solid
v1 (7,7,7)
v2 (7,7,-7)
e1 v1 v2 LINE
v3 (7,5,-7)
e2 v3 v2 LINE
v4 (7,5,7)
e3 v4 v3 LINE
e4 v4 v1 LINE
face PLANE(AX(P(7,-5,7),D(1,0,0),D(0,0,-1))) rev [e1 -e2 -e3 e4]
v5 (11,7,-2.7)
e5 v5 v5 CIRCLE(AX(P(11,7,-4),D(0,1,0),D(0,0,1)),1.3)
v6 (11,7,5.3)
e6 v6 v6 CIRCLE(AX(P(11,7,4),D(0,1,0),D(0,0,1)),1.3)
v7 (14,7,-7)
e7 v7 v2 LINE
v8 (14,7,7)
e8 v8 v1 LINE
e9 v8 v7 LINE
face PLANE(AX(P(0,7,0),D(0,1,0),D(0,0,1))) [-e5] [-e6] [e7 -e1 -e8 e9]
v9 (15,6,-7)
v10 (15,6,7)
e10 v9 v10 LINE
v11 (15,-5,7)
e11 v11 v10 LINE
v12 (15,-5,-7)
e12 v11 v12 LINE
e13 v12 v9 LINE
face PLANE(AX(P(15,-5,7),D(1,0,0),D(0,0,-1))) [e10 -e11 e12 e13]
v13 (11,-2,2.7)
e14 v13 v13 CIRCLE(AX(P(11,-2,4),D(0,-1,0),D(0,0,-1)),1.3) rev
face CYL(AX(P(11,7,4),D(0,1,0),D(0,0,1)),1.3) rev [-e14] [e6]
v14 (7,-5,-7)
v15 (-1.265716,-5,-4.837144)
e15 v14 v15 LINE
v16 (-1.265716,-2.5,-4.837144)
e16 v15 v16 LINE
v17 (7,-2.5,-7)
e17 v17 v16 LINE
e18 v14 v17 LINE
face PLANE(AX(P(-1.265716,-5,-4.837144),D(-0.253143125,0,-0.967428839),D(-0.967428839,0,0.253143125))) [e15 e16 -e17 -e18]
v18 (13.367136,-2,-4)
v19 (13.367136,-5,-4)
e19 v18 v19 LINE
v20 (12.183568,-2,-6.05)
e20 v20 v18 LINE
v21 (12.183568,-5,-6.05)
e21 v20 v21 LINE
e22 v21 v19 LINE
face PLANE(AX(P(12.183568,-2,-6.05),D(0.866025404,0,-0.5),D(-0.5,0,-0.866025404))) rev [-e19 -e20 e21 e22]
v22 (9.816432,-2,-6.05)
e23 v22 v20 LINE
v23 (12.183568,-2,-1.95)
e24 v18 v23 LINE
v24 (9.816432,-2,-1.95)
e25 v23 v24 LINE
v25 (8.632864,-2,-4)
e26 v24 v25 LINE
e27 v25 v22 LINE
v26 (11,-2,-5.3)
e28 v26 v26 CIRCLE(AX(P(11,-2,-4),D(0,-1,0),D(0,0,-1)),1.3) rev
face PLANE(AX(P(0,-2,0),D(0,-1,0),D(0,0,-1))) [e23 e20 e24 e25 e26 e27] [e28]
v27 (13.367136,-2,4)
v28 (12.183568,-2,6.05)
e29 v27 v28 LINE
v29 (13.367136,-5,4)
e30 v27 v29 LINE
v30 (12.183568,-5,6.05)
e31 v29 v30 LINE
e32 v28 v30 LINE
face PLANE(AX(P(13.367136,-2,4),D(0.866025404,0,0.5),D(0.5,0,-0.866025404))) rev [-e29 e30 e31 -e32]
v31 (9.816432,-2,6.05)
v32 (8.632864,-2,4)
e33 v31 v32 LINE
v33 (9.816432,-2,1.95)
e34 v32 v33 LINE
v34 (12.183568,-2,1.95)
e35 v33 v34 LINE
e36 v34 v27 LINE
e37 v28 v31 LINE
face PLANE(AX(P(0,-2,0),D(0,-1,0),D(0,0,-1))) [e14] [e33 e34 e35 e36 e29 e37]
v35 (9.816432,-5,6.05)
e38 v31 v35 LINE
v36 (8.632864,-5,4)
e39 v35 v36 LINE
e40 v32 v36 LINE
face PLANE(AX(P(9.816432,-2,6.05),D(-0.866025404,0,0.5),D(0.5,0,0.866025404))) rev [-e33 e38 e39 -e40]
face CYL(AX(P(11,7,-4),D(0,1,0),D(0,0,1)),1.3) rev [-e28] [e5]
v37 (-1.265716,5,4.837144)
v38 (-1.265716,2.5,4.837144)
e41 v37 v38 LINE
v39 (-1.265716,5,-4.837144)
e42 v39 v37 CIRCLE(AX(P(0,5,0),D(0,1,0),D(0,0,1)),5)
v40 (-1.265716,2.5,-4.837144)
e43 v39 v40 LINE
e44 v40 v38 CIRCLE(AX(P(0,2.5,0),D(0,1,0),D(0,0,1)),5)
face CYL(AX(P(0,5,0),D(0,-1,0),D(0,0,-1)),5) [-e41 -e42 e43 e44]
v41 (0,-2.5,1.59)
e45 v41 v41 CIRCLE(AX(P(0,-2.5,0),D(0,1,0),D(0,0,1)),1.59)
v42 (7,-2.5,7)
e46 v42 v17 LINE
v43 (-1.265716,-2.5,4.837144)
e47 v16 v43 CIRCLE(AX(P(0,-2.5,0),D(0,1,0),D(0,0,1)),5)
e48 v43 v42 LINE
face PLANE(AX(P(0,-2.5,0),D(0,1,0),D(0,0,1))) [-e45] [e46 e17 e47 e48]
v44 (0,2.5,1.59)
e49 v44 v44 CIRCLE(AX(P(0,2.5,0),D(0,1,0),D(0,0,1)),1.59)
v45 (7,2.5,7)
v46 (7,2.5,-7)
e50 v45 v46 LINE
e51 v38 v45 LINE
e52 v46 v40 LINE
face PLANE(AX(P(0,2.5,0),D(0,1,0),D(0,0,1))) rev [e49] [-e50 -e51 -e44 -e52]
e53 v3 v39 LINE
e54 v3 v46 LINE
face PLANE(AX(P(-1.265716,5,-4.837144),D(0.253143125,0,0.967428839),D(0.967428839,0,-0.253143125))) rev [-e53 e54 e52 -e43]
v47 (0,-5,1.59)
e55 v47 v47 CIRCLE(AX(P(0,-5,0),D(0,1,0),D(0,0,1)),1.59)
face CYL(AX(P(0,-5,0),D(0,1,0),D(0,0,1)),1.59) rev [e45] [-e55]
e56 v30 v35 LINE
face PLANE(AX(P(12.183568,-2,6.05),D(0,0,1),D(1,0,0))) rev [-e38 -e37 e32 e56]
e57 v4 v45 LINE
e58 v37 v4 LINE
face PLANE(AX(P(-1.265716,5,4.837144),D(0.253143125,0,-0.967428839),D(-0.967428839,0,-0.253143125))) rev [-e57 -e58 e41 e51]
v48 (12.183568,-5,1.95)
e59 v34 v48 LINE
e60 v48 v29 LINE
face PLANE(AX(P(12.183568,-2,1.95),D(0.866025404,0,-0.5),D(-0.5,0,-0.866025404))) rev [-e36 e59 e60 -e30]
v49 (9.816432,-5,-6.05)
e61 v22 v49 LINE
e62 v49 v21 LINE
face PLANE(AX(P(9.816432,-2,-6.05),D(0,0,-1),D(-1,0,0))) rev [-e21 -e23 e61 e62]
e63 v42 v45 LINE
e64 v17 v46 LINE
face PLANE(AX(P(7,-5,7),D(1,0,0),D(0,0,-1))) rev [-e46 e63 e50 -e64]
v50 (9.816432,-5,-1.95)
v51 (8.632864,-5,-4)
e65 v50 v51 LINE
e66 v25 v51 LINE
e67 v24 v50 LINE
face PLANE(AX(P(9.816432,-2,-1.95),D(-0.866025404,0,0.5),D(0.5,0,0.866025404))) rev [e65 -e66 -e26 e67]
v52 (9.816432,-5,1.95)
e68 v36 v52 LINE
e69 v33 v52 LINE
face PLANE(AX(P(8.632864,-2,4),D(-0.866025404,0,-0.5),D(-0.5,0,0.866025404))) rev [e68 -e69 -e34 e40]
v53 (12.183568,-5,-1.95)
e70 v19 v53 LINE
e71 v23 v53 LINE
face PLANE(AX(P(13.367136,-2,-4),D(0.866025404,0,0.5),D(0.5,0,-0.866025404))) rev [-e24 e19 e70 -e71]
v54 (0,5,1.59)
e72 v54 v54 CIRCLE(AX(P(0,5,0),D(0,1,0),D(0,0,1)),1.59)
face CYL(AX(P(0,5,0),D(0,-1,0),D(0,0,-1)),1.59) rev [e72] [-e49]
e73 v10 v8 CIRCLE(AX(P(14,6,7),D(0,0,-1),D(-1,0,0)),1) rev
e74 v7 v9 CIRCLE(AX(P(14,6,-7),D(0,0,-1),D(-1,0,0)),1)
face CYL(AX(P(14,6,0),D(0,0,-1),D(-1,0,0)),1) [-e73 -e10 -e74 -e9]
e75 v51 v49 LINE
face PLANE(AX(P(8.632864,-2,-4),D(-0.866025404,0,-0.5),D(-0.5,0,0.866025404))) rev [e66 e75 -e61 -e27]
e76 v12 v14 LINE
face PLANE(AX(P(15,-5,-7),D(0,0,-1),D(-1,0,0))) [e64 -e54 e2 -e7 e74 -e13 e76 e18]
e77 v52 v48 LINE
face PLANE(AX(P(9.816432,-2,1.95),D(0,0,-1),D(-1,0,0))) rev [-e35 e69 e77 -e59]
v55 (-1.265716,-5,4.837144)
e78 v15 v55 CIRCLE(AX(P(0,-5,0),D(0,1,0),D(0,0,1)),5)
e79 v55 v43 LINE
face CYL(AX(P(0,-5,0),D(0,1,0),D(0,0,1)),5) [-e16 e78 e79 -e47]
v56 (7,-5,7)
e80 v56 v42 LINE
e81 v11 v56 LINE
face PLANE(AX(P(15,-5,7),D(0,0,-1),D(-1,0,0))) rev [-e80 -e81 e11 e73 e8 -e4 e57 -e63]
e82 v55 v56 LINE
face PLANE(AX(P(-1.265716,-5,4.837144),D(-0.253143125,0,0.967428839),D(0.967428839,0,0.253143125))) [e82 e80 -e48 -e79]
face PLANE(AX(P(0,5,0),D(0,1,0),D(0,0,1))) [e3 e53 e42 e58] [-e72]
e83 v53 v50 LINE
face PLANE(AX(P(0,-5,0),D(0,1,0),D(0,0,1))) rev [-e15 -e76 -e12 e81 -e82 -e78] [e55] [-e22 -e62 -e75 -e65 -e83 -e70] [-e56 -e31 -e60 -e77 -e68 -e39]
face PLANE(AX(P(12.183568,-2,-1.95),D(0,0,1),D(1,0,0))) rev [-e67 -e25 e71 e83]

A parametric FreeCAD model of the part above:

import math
import FreeCAD as App
import Part
import Sketcher

V = App.Vector
Q = App.Units.Quantity


def edges_at(feature, points):
    """Names of the edges that pass closest to the given points."""
    edges = feature.Shape.Edges
    near = lambda p: min(range(len(edges)), key=lambda i: edges[i].distToShape(Part.Vertex(*p))[0])
    return sorted({f"Edge{near(p) + 1}" for p in points})

doc = App.newDocument("Part")
params = doc.addObject("Spreadsheet::Sheet", "Params")
for row, (alias, value) in enumerate([
    ("sketch1_width", "8 mm"),
    ("sketch1_height", "14 mm"),
    ("pad1_length", "7 mm"),
    ("pad1_length2", "5 mm"),
    ("sketch2_radius", "5 mm"),
    ("sketch2_diameter", "3.18 mm"),
    ("sketch2_height", "14 mm"),
    ("pad2_length", "2.5 mm"),
    ("sketch3_radius", "5 mm"),
    ("sketch3_diameter", "3.18 mm"),
    ("sketch3_height", "14 mm"),
    ("pad3_length", "2.5 mm"),
    ("sketch4_diameter", "2.6 mm"),
    ("hole_diameter", "2.6 mm"),
    ("pocket1_length", "3 mm"),
    ("fillet_radius", "1 mm"),
], start=1):
    params.set(f"A{row}", alias)
    params.set(f"B{row}", "=" + value)
    params.setAlias(f"B{row}", alias)

body = doc.addObject("PartDesign::Body", "Body")

sketch1 = doc.addObject("Sketcher::SketchObject", "Sketch")
body.addObject(sketch1)
sketch1.AttachmentSupport = (doc.XZ_Plane, [""])
sketch1.MapMode = "FlatFace"
sketch1.addGeometry(Part.LineSegment(V(7, -7, 0), V(7, 7, 0)), False)
sketch1.addGeometry(Part.LineSegment(V(7, 7, 0), V(15, 7, 0)), False)
sketch1.addGeometry(Part.LineSegment(V(15, 7, 0), V(15, -7, 0)), False)
sketch1.addGeometry(Part.LineSegment(V(15, -7, 0), V(7, -7, 0)), False)
sketch1.addConstraint(Sketcher.Constraint("Coincident", 0, 2, 1, 1))
sketch1.addConstraint(Sketcher.Constraint("Coincident", 1, 2, 2, 1))
sketch1.addConstraint(Sketcher.Constraint("Coincident", 2, 2, 3, 1))
sketch1.addConstraint(Sketcher.Constraint("Coincident", 3, 2, 0, 1))
sketch1.addConstraint(Sketcher.Constraint("Vertical", 0))
sketch1.addConstraint(Sketcher.Constraint("Horizontal", 1))
sketch1.addConstraint(Sketcher.Constraint("Vertical", 2))
sketch1.addConstraint(Sketcher.Constraint("Horizontal", 3))
sketch1.addConstraint(Sketcher.Constraint("DistanceX", 1, 1, 1, 2, 8.0))
sketch1.addConstraint(Sketcher.Constraint("DistanceY", 0, 1, 0, 2, 14.0))
sketch1.addConstraint(Sketcher.Constraint("DistanceX", -1, 1, 0, 2, 7.0))
sketch1.addConstraint(Sketcher.Constraint("DistanceY", -1, 1, 0, 2, 7.0))
sketch1.setExpression("Constraints[8]", "Params.sketch1_width")
sketch1.setExpression("Constraints[9]", "Params.sketch1_height")
pad1 = doc.addObject("PartDesign::Pad", "Pad")
body.addObject(pad1)
pad1.Profile = sketch1
pad1.Type = "TwoLengths"
pad1.setExpression("Length", "Params.pad1_length")
pad1.setExpression("Length2", "Params.pad1_length2")
pad1.Reversed = True

sketch2 = doc.addObject("Sketcher::SketchObject", "Sketch001")
body.addObject(sketch2)
sketch2.AttachmentSupport = (doc.XZ_Plane, [""])
sketch2.MapMode = "FlatFace"
sketch2.AttachmentOffset = App.Placement(V(0, 0, -2.5), App.Rotation())
sketch2.addGeometry(Part.LineSegment(V(7, -7, 0), V(-1.265716, -4.837144, 0)), False)
sketch2.addGeometry(Part.ArcOfCircle(Part.Circle(V(0, 0, 0), V(0, 0, 1), 5), math.radians(104.663584), math.radians(255.336416)), False)
sketch2.addGeometry(Part.LineSegment(V(-1.265716, 4.837144, 0), V(7, 7, 0)), False)
sketch2.addGeometry(Part.LineSegment(V(7, 7, 0), V(7, -7, 0)), False)
sketch2.addGeometry(Part.Circle(V(0, 0, 0), V(0, 0, 1), 1.59), False)
sketch2.addConstraint(Sketcher.Constraint("Tangent", 0, 2, 1, 2))
sketch2.addConstraint(Sketcher.Constraint("Tangent", 1, 1, 2, 1))
sketch2.addConstraint(Sketcher.Constraint("Coincident", 2, 2, 3, 1))
sketch2.addConstraint(Sketcher.Constraint("Coincident", 3, 2, 0, 1))
sketch2.addConstraint(Sketcher.Constraint("Vertical", 3))
sketch2.addConstraint(Sketcher.Constraint("Coincident", 1, 3, -1, 1))
sketch2.addConstraint(Sketcher.Constraint("Coincident", 4, 3, -1, 1))
sketch2.addConstraint(Sketcher.Constraint("Vertical", 0, 2, 1, 1))
sketch2.addConstraint(Sketcher.Constraint("Radius", 1, 5.0))
sketch2.addConstraint(Sketcher.Constraint("Diameter", 4, 3.18))
sketch2.addConstraint(Sketcher.Constraint("DistanceY", 3, 2, 3, 1, 14.0))
sketch2.addConstraint(Sketcher.Constraint("DistanceX", -1, 1, 2, 2, 7.0))
sketch2.setExpression("Constraints[8]", "Params.sketch2_radius")
sketch2.setExpression("Constraints[9]", "Params.sketch2_diameter")
sketch2.setExpression("Constraints[10]", "Params.sketch2_height")
pad2 = doc.addObject("PartDesign::Pad", "Pad001")
body.addObject(pad2)
pad2.Profile = sketch2
pad2.setExpression("Length", "Params.pad2_length")
pad2.Reversed = True

sketch3 = doc.addObject("Sketcher::SketchObject", "Sketch002")
body.addObject(sketch3)
sketch3.AttachmentSupport = (doc.XZ_Plane, [""])
sketch3.MapMode = "FlatFace"
sketch3.AttachmentOffset = App.Placement(V(0, 0, 5), App.Rotation())
sketch3.addGeometry(Part.LineSegment(V(7, -7, 0), V(-1.265716, -4.837144, 0)), False)
sketch3.addGeometry(Part.ArcOfCircle(Part.Circle(V(0, 0, 0), V(0, 0, 1), 5), math.radians(104.663584), math.radians(255.336416)), False)
sketch3.addGeometry(Part.LineSegment(V(-1.265716, 4.837144, 0), V(7, 7, 0)), False)
sketch3.addGeometry(Part.LineSegment(V(7, 7, 0), V(7, -7, 0)), False)
sketch3.addGeometry(Part.Circle(V(0, 0, 0), V(0, 0, 1), 1.59), False)
sketch3.addConstraint(Sketcher.Constraint("Tangent", 0, 2, 1, 2))
sketch3.addConstraint(Sketcher.Constraint("Tangent", 1, 1, 2, 1))
sketch3.addConstraint(Sketcher.Constraint("Coincident", 2, 2, 3, 1))
sketch3.addConstraint(Sketcher.Constraint("Coincident", 3, 2, 0, 1))
sketch3.addConstraint(Sketcher.Constraint("Vertical", 3))
sketch3.addConstraint(Sketcher.Constraint("Coincident", 1, 3, -1, 1))
sketch3.addConstraint(Sketcher.Constraint("Coincident", 4, 3, -1, 1))
sketch3.addConstraint(Sketcher.Constraint("Vertical", 0, 2, 1, 1))
sketch3.addConstraint(Sketcher.Constraint("Radius", 1, 5.0))
sketch3.addConstraint(Sketcher.Constraint("Diameter", 4, 3.18))
sketch3.addConstraint(Sketcher.Constraint("DistanceY", 3, 2, 3, 1, 14.0))
sketch3.addConstraint(Sketcher.Constraint("DistanceX", -1, 1, 2, 2, 7.0))
sketch3.setExpression("Constraints[8]", "Params.sketch3_radius")
sketch3.setExpression("Constraints[9]", "Params.sketch3_diameter")
sketch3.setExpression("Constraints[10]", "Params.sketch3_height")
pad3 = doc.addObject("PartDesign::Pad", "Pad002")
body.addObject(pad3)
pad3.Profile = sketch3
pad3.setExpression("Length", "Params.pad3_length")
pad3.Reversed = True

sketch4 = doc.addObject("Sketcher::SketchObject", "Sketch003")
body.addObject(sketch4)
sketch4.AttachmentSupport = (doc.XZ_Plane, [""])
sketch4.MapMode = "FlatFace"
sketch4.AttachmentOffset = App.Placement(V(0, 0, -7), App.Rotation())
sketch4.addGeometry(Part.Circle(V(11, -4, 0), V(0, 0, 1), 1.3), False)
sketch4.addGeometry(Part.Circle(V(11, 4, 0), V(0, 0, 1), 1.3), False)
sketch4.addConstraint(Sketcher.Constraint("Equal", 0, 1))
sketch4.addConstraint(Sketcher.Constraint("Symmetric", 0, 3, 1, 3, -1))
sketch4.addConstraint(Sketcher.Constraint("Diameter", 0, 2.6))
sketch4.addConstraint(Sketcher.Constraint("DistanceX", -1, 1, 0, 3, 11.0))
sketch4.addConstraint(Sketcher.Constraint("DistanceY", 0, 3, -1, 1, 4.0))
sketch4.setExpression("Constraints[2]", "Params.sketch4_diameter")
doc.recompute()
hole = doc.addObject("PartDesign::Hole", "Hole")
body.addObject(hole)
hole.Profile = sketch4
hole.ThreadType = "None"
hole.setExpression("Diameter", "Params.hole_diameter")
hole.DepthType = "ThroughAll"
hole.Reversed = True

sketch5 = doc.addObject("Sketcher::SketchObject", "Sketch004")
body.addObject(sketch5)
sketch5.AttachmentSupport = (doc.XZ_Plane, [""])
sketch5.MapMode = "FlatFace"
sketch5.AttachmentOffset = App.Placement(V(0, 0, 5), App.Rotation())
sketch5.addGeometry(Part.LineSegment(V(9.816432, 1.95, 0), V(12.183568, 1.95, 0)), False)
sketch5.addGeometry(Part.LineSegment(V(12.183568, 1.95, 0), V(13.367136, 4, 0)), False)
sketch5.addGeometry(Part.LineSegment(V(13.367136, 4, 0), V(12.183568, 6.05, 0)), False)
sketch5.addGeometry(Part.LineSegment(V(12.183568, 6.05, 0), V(9.816432, 6.05, 0)), False)
sketch5.addGeometry(Part.LineSegment(V(9.816432, 6.05, 0), V(8.632864, 4, 0)), False)
sketch5.addGeometry(Part.LineSegment(V(8.632864, 4, 0), V(9.816432, 1.95, 0)), False)
sketch5.addGeometry(Part.LineSegment(V(8.632864, -4, 0), V(9.816432, -6.05, 0)), False)
sketch5.addGeometry(Part.LineSegment(V(9.816432, -6.05, 0), V(12.183568, -6.05, 0)), False)
sketch5.addGeometry(Part.LineSegment(V(12.183568, -6.05, 0), V(13.367136, -4, 0)), False)
sketch5.addGeometry(Part.LineSegment(V(13.367136, -4, 0), V(12.183568, -1.95, 0)), False)
sketch5.addGeometry(Part.LineSegment(V(12.183568, -1.95, 0), V(9.816432, -1.95, 0)), False)
sketch5.addGeometry(Part.LineSegment(V(9.816432, -1.95, 0), V(8.632864, -4, 0)), False)
sketch5.addConstraint(Sketcher.Constraint("Coincident", 0, 2, 1, 1))
sketch5.addConstraint(Sketcher.Constraint("Coincident", 1, 2, 2, 1))
sketch5.addConstraint(Sketcher.Constraint("Coincident", 2, 2, 3, 1))
sketch5.addConstraint(Sketcher.Constraint("Coincident", 3, 2, 4, 1))
sketch5.addConstraint(Sketcher.Constraint("Coincident", 4, 2, 5, 1))
sketch5.addConstraint(Sketcher.Constraint("Coincident", 5, 2, 0, 1))
sketch5.addConstraint(Sketcher.Constraint("Coincident", 6, 2, 7, 1))
sketch5.addConstraint(Sketcher.Constraint("Coincident", 7, 2, 8, 1))
sketch5.addConstraint(Sketcher.Constraint("Coincident", 8, 2, 9, 1))
sketch5.addConstraint(Sketcher.Constraint("Coincident", 9, 2, 10, 1))
sketch5.addConstraint(Sketcher.Constraint("Coincident", 10, 2, 11, 1))
sketch5.addConstraint(Sketcher.Constraint("Coincident", 11, 2, 6, 1))
sketch5.addConstraint(Sketcher.Constraint("Horizontal", 0))
sketch5.addConstraint(Sketcher.Constraint("Horizontal", 3))
sketch5.addConstraint(Sketcher.Constraint("Horizontal", 7))
sketch5.addConstraint(Sketcher.Constraint("Horizontal", 10))
sketch5.addConstraint(Sketcher.Constraint("Symmetric", 3, 2, 6, 2, -1))
sketch5.addConstraint(Sketcher.Constraint("Symmetric", 1, 2, 8, 2, -1))
sketch5.addConstraint(Sketcher.Constraint("Symmetric", 0, 2, 9, 2, -1))
sketch5.addConstraint(Sketcher.Constraint("Symmetric", 4, 2, 11, 2, -1))
sketch5.addConstraint(Sketcher.Constraint("Parallel", 1, 4))
sketch5.addConstraint(Sketcher.Constraint("Parallel", 2, 5))
sketch5.addConstraint(Sketcher.Constraint("Parallel", 5, 6))
sketch5.addConstraint(Sketcher.Constraint("Parallel", 4, 8))
sketch5.addConstraint(Sketcher.Constraint("Parallel", 8, 11))
sketch5.addConstraint(Sketcher.Constraint("Horizontal", 1, 2, 4, 2))
sketch5.addConstraint(Sketcher.Constraint("Vertical", 0, 2, 2, 2))
sketch5.addConstraint(Sketcher.Constraint("Angle", 1, Q("60 deg")))
sketch5.addConstraint(Sketcher.Constraint("DistanceY", -1, 1, 1, 2, 4.0))
sketch5.addConstraint(Sketcher.Constraint("DistanceY", 0, 2, 2, 2, 4.1))
sketch5.addConstraint(Sketcher.Constraint("DistanceX", 0, 1, 0, 2, 2.367136))
sketch5.addConstraint(Sketcher.Constraint("DistanceX", -1, 1, 0, 2, 12.183568))
pocket1 = doc.addObject("PartDesign::Pocket", "Pocket")
body.addObject(pocket1)
pocket1.Profile = sketch5
pocket1.setExpression("Length", "Params.pocket1_length")
doc.recompute()

fillet = doc.addObject("PartDesign::Fillet", "Fillet")
body.addObject(fillet)
fillet.Base = (pocket1, edges_at(pocket1, [(15, 7, 0)]))
fillet.setExpression("Radius", "Params.fillet_radius")

doc.recompute()
